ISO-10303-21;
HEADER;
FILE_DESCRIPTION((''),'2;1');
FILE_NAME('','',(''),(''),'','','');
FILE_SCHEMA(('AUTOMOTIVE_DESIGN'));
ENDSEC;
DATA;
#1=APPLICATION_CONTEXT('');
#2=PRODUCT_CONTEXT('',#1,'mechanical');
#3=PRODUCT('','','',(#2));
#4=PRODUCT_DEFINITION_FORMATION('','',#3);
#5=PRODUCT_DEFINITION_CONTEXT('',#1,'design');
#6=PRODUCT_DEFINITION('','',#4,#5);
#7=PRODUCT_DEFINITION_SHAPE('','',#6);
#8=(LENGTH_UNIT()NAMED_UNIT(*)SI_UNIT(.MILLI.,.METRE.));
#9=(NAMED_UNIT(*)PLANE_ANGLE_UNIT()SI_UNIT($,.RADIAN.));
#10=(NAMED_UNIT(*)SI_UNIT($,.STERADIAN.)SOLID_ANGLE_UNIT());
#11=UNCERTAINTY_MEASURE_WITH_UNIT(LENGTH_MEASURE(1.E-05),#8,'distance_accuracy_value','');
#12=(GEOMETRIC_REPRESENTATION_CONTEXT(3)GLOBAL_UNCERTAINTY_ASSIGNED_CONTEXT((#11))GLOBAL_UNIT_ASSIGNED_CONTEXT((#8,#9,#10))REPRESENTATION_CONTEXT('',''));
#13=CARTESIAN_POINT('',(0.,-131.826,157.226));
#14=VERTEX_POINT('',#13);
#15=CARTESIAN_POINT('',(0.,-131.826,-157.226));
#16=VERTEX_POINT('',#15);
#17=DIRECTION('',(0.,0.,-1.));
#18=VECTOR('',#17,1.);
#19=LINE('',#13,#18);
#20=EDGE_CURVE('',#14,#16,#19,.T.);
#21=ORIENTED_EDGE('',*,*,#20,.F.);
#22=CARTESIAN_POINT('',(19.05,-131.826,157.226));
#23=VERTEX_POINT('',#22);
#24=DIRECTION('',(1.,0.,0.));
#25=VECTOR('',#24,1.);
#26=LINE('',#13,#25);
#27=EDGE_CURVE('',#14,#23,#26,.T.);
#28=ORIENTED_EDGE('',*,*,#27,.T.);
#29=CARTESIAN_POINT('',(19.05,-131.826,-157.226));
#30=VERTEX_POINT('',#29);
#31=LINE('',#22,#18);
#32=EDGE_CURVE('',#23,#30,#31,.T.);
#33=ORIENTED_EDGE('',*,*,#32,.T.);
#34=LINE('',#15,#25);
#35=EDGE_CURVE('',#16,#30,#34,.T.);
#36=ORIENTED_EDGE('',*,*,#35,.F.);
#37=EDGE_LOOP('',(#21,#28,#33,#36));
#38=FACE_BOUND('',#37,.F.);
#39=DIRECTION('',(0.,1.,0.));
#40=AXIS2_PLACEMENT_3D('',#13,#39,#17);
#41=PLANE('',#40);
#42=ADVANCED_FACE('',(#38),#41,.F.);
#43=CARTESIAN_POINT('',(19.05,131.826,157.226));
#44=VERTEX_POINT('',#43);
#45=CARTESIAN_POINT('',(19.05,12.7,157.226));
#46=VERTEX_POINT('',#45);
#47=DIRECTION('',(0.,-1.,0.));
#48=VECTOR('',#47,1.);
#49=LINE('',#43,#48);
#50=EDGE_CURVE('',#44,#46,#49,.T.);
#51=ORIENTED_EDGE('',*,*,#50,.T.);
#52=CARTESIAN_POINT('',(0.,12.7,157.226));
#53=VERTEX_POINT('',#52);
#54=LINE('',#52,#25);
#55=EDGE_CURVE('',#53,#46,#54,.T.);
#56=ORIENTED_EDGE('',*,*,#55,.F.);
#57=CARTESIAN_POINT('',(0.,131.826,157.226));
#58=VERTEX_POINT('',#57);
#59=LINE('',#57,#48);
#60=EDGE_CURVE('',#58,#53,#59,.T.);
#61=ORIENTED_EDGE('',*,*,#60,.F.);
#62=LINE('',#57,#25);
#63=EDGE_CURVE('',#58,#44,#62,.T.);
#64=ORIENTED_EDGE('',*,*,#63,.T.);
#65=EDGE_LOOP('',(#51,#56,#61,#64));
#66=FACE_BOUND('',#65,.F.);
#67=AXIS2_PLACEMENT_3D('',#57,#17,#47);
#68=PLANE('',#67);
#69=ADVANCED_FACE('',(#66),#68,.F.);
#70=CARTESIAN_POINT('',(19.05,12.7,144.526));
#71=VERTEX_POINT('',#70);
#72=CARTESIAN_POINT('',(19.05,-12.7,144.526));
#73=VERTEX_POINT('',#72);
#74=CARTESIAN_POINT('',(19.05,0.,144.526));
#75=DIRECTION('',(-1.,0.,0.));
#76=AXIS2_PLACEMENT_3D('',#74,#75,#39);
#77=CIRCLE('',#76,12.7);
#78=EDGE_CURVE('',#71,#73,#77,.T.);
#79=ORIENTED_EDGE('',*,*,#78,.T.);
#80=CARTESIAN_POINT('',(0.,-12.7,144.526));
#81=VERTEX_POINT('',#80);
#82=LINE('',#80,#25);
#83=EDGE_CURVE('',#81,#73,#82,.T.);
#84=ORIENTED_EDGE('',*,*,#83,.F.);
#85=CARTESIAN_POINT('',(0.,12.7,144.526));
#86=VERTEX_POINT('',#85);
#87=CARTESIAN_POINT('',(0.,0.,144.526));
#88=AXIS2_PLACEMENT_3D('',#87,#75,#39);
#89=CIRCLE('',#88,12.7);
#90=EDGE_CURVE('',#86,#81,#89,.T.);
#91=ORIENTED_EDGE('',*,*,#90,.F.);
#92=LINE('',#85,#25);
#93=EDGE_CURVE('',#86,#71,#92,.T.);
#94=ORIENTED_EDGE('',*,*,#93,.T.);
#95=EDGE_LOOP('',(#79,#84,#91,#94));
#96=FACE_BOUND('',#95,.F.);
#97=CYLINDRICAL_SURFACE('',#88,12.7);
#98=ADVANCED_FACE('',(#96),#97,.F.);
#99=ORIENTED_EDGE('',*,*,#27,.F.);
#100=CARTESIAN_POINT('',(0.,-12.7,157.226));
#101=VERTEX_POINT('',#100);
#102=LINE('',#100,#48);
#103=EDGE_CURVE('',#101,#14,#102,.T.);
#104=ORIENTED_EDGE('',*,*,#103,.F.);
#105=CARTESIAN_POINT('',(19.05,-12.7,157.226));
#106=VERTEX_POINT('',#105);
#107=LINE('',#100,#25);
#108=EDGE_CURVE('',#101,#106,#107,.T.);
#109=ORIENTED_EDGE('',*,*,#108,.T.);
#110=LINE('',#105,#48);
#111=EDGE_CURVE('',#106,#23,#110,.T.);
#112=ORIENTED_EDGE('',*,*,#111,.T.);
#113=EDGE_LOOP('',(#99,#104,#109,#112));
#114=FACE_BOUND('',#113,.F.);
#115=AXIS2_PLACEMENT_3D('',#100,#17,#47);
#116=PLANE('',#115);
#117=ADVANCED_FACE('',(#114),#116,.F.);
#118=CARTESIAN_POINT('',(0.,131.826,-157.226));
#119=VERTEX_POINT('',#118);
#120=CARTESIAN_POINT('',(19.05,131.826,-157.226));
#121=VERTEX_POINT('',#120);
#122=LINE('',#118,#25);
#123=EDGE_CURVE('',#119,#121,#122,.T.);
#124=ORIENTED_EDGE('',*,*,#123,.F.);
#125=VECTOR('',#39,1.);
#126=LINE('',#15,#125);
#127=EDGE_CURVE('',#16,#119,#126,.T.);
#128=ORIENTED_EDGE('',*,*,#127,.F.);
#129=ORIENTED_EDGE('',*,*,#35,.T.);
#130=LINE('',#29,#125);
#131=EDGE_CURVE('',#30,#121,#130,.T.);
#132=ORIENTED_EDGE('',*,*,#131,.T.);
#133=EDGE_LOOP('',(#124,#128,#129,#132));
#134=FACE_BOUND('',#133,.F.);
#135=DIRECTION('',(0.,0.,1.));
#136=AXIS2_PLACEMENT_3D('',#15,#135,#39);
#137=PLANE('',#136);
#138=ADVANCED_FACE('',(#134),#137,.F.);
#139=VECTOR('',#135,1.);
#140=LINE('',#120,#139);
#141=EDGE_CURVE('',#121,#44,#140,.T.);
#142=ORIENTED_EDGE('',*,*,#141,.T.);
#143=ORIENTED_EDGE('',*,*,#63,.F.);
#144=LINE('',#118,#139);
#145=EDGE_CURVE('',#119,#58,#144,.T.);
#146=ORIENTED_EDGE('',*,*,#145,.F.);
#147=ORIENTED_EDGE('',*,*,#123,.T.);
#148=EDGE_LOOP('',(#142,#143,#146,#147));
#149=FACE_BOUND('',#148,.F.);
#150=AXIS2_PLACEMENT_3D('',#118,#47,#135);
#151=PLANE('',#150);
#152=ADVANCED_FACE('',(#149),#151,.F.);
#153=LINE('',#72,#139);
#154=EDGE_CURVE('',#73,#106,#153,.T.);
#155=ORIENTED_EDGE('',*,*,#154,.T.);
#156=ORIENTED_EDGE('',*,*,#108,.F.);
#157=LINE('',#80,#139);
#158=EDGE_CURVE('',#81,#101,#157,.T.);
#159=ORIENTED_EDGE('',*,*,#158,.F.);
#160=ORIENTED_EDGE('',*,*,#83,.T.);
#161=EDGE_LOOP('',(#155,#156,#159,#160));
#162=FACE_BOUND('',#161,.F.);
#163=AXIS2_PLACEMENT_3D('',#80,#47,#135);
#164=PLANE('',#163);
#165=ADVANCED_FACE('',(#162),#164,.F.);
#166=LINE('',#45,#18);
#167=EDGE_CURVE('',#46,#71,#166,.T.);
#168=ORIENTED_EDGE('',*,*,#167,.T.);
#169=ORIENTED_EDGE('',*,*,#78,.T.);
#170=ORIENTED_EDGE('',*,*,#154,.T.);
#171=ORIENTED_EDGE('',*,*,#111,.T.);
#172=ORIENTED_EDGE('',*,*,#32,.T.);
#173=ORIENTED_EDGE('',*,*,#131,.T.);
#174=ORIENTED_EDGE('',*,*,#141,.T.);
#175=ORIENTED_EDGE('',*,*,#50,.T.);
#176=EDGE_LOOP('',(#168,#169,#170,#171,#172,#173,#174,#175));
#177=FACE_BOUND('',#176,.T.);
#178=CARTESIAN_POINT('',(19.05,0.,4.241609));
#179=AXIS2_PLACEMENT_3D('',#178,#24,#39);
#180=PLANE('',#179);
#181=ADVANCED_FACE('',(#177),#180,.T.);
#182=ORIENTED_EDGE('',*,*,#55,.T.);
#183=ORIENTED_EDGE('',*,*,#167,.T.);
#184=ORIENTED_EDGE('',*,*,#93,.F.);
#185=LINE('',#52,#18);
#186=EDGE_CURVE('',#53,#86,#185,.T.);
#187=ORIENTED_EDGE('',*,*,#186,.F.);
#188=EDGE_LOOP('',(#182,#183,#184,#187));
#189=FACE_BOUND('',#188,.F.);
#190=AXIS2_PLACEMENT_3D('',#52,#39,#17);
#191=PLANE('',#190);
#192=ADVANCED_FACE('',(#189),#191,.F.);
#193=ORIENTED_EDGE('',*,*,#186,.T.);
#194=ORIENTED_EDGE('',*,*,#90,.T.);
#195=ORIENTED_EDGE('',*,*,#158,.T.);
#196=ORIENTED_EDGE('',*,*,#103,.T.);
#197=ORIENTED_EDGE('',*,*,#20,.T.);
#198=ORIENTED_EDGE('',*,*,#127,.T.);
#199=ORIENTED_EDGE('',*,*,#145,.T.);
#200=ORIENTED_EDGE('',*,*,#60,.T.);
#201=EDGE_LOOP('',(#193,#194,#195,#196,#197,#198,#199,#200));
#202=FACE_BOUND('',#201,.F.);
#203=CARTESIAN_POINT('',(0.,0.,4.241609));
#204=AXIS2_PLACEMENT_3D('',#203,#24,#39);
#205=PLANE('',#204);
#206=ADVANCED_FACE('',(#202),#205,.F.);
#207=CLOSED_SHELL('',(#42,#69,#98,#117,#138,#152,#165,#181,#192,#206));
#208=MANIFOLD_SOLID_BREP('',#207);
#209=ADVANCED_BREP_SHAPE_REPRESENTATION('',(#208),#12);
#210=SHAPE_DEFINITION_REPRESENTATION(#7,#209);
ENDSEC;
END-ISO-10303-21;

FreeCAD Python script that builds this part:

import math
import FreeCAD as App
import Part
import Sketcher

V = App.Vector
Q = App.Units.Quantity

doc = App.newDocument("Part")
params = doc.addObject("Spreadsheet::Sheet", "Params")
for row, (alias, value) in enumerate([
    ("sketch1_radius", "0.5 in"),
    ("sketch1_height", "0.5 in"),
    ("sketch1_width", "4.69 in"),
    ("sketch1_height2", "12.38 in"),
    ("pad1_length", "0.75 in"),
], start=1):
    params.set(f"A{row}", alias)
    params.set(f"B{row}", "=" + value)
    params.setAlias(f"B{row}", alias)

body = doc.addObject("PartDesign::Body", "Body")

# Sketch on YZ plane
sketch1 = doc.addObject("Sketcher::SketchObject", "Sketch")
body.addObject(sketch1)
sketch1.AttachmentSupport = (doc.YZ_Plane, [""])
sketch1.MapMode = "FlatFace"
sketch1.addGeometry(Part.LineSegment(V(132, -157, 0), V(132, 157, 0)), False)
sketch1.addGeometry(Part.LineSegment(V(132, 157, 0), V(13, 157, 0)), False)
sketch1.addGeometry(Part.LineSegment(V(13, 157, 0), V(13, 145, 0)), False)
sketch1.addGeometry(Part.ArcOfCircle(Part.Circle(V(0, 145, 0), V(0, 0, 1), 13), math.radians(180), math.radians(360)), False)
sketch1.addGeometry(Part.LineSegment(V(-13, 145, 0), V(-13, 157, 0)), False)
sketch1.addGeometry(Part.LineSegment(V(-13, 157, 0), V(-132, 157, 0)), False)
sketch1.addGeometry(Part.LineSegment(V(-132, 157, 0), V(-132, -157, 0)), False)
sketch1.addGeometry(Part.LineSegment(V(-132, -157, 0), V(132, -157, 0)), False)
sketch1.addConstraint(Sketcher.Constraint("Coincident", 0, 2, 1, 1))
sketch1.addConstraint(Sketcher.Constraint("Coincident", 1, 2, 2, 1))
sketch1.addConstraint(Sketcher.Constraint("Tangent", 2, 2, 3, 2))
sketch1.addConstraint(Sketcher.Constraint("Tangent", 3, 1, 4, 1))
sketch1.addConstraint(Sketcher.Constraint("Coincident", 4, 2, 5, 1))
sketch1.addConstraint(Sketcher.Constraint("Coincident", 5, 2, 6, 1))
sketch1.addConstraint(Sketcher.Constraint("Coincident", 6, 2, 7, 1))
sketch1.addConstraint(Sketcher.Constraint("Coincident", 7, 2, 0, 1))
sketch1.addConstraint(Sketcher.Constraint("Vertical", 0))
sketch1.addConstraint(Sketcher.Constraint("Horizontal", 1))
sketch1.addConstraint(Sketcher.Constraint("Vertical", 2))
sketch1.addConstraint(Sketcher.Constraint("Vertical", 4))
sketch1.addConstraint(Sketcher.Constraint("Horizontal", 5))
sketch1.addConstraint(Sketcher.Constraint("Vertical", 6))
sketch1.addConstraint(Sketcher.Constraint("Horizontal", 7))
sketch1.addConstraint(Sketcher.Constraint("Symmetric", 0, 2, 6, 2, -1, 1))
sketch1.addConstraint(Sketcher.Constraint("Symmetric", 1, 2, 4, 2, -2))
sketch1.addConstraint(Sketcher.Constraint("Radius", 3, Q("0.5 in")))
sketch1.addConstraint(Sketcher.Constraint("DistanceY", 2, 2, 2, 1, Q("0.5 in")))
sketch1.addConstraint(Sketcher.Constraint("DistanceX", 1, 2, 1, 1, Q("4.69 in")))
sketch1.addConstraint(Sketcher.Constraint("DistanceY", 0, 1, 0, 2, Q("12.38 in")))
sketch1.setExpression("Constraints[17]", "Params.sketch1_radius")
sketch1.setExpression("Constraints[18]", "Params.sketch1_height")
sketch1.setExpression("Constraints[19]", "Params.sketch1_width")
sketch1.setExpression("Constraints[20]", "Params.sketch1_height2")
pad1 = doc.addObject("PartDesign::Pad", "Pad")
body.addObject(pad1)
pad1.Profile = sketch1
pad1.setExpression("Length", "Params.pad1_length")

doc.recompute()
